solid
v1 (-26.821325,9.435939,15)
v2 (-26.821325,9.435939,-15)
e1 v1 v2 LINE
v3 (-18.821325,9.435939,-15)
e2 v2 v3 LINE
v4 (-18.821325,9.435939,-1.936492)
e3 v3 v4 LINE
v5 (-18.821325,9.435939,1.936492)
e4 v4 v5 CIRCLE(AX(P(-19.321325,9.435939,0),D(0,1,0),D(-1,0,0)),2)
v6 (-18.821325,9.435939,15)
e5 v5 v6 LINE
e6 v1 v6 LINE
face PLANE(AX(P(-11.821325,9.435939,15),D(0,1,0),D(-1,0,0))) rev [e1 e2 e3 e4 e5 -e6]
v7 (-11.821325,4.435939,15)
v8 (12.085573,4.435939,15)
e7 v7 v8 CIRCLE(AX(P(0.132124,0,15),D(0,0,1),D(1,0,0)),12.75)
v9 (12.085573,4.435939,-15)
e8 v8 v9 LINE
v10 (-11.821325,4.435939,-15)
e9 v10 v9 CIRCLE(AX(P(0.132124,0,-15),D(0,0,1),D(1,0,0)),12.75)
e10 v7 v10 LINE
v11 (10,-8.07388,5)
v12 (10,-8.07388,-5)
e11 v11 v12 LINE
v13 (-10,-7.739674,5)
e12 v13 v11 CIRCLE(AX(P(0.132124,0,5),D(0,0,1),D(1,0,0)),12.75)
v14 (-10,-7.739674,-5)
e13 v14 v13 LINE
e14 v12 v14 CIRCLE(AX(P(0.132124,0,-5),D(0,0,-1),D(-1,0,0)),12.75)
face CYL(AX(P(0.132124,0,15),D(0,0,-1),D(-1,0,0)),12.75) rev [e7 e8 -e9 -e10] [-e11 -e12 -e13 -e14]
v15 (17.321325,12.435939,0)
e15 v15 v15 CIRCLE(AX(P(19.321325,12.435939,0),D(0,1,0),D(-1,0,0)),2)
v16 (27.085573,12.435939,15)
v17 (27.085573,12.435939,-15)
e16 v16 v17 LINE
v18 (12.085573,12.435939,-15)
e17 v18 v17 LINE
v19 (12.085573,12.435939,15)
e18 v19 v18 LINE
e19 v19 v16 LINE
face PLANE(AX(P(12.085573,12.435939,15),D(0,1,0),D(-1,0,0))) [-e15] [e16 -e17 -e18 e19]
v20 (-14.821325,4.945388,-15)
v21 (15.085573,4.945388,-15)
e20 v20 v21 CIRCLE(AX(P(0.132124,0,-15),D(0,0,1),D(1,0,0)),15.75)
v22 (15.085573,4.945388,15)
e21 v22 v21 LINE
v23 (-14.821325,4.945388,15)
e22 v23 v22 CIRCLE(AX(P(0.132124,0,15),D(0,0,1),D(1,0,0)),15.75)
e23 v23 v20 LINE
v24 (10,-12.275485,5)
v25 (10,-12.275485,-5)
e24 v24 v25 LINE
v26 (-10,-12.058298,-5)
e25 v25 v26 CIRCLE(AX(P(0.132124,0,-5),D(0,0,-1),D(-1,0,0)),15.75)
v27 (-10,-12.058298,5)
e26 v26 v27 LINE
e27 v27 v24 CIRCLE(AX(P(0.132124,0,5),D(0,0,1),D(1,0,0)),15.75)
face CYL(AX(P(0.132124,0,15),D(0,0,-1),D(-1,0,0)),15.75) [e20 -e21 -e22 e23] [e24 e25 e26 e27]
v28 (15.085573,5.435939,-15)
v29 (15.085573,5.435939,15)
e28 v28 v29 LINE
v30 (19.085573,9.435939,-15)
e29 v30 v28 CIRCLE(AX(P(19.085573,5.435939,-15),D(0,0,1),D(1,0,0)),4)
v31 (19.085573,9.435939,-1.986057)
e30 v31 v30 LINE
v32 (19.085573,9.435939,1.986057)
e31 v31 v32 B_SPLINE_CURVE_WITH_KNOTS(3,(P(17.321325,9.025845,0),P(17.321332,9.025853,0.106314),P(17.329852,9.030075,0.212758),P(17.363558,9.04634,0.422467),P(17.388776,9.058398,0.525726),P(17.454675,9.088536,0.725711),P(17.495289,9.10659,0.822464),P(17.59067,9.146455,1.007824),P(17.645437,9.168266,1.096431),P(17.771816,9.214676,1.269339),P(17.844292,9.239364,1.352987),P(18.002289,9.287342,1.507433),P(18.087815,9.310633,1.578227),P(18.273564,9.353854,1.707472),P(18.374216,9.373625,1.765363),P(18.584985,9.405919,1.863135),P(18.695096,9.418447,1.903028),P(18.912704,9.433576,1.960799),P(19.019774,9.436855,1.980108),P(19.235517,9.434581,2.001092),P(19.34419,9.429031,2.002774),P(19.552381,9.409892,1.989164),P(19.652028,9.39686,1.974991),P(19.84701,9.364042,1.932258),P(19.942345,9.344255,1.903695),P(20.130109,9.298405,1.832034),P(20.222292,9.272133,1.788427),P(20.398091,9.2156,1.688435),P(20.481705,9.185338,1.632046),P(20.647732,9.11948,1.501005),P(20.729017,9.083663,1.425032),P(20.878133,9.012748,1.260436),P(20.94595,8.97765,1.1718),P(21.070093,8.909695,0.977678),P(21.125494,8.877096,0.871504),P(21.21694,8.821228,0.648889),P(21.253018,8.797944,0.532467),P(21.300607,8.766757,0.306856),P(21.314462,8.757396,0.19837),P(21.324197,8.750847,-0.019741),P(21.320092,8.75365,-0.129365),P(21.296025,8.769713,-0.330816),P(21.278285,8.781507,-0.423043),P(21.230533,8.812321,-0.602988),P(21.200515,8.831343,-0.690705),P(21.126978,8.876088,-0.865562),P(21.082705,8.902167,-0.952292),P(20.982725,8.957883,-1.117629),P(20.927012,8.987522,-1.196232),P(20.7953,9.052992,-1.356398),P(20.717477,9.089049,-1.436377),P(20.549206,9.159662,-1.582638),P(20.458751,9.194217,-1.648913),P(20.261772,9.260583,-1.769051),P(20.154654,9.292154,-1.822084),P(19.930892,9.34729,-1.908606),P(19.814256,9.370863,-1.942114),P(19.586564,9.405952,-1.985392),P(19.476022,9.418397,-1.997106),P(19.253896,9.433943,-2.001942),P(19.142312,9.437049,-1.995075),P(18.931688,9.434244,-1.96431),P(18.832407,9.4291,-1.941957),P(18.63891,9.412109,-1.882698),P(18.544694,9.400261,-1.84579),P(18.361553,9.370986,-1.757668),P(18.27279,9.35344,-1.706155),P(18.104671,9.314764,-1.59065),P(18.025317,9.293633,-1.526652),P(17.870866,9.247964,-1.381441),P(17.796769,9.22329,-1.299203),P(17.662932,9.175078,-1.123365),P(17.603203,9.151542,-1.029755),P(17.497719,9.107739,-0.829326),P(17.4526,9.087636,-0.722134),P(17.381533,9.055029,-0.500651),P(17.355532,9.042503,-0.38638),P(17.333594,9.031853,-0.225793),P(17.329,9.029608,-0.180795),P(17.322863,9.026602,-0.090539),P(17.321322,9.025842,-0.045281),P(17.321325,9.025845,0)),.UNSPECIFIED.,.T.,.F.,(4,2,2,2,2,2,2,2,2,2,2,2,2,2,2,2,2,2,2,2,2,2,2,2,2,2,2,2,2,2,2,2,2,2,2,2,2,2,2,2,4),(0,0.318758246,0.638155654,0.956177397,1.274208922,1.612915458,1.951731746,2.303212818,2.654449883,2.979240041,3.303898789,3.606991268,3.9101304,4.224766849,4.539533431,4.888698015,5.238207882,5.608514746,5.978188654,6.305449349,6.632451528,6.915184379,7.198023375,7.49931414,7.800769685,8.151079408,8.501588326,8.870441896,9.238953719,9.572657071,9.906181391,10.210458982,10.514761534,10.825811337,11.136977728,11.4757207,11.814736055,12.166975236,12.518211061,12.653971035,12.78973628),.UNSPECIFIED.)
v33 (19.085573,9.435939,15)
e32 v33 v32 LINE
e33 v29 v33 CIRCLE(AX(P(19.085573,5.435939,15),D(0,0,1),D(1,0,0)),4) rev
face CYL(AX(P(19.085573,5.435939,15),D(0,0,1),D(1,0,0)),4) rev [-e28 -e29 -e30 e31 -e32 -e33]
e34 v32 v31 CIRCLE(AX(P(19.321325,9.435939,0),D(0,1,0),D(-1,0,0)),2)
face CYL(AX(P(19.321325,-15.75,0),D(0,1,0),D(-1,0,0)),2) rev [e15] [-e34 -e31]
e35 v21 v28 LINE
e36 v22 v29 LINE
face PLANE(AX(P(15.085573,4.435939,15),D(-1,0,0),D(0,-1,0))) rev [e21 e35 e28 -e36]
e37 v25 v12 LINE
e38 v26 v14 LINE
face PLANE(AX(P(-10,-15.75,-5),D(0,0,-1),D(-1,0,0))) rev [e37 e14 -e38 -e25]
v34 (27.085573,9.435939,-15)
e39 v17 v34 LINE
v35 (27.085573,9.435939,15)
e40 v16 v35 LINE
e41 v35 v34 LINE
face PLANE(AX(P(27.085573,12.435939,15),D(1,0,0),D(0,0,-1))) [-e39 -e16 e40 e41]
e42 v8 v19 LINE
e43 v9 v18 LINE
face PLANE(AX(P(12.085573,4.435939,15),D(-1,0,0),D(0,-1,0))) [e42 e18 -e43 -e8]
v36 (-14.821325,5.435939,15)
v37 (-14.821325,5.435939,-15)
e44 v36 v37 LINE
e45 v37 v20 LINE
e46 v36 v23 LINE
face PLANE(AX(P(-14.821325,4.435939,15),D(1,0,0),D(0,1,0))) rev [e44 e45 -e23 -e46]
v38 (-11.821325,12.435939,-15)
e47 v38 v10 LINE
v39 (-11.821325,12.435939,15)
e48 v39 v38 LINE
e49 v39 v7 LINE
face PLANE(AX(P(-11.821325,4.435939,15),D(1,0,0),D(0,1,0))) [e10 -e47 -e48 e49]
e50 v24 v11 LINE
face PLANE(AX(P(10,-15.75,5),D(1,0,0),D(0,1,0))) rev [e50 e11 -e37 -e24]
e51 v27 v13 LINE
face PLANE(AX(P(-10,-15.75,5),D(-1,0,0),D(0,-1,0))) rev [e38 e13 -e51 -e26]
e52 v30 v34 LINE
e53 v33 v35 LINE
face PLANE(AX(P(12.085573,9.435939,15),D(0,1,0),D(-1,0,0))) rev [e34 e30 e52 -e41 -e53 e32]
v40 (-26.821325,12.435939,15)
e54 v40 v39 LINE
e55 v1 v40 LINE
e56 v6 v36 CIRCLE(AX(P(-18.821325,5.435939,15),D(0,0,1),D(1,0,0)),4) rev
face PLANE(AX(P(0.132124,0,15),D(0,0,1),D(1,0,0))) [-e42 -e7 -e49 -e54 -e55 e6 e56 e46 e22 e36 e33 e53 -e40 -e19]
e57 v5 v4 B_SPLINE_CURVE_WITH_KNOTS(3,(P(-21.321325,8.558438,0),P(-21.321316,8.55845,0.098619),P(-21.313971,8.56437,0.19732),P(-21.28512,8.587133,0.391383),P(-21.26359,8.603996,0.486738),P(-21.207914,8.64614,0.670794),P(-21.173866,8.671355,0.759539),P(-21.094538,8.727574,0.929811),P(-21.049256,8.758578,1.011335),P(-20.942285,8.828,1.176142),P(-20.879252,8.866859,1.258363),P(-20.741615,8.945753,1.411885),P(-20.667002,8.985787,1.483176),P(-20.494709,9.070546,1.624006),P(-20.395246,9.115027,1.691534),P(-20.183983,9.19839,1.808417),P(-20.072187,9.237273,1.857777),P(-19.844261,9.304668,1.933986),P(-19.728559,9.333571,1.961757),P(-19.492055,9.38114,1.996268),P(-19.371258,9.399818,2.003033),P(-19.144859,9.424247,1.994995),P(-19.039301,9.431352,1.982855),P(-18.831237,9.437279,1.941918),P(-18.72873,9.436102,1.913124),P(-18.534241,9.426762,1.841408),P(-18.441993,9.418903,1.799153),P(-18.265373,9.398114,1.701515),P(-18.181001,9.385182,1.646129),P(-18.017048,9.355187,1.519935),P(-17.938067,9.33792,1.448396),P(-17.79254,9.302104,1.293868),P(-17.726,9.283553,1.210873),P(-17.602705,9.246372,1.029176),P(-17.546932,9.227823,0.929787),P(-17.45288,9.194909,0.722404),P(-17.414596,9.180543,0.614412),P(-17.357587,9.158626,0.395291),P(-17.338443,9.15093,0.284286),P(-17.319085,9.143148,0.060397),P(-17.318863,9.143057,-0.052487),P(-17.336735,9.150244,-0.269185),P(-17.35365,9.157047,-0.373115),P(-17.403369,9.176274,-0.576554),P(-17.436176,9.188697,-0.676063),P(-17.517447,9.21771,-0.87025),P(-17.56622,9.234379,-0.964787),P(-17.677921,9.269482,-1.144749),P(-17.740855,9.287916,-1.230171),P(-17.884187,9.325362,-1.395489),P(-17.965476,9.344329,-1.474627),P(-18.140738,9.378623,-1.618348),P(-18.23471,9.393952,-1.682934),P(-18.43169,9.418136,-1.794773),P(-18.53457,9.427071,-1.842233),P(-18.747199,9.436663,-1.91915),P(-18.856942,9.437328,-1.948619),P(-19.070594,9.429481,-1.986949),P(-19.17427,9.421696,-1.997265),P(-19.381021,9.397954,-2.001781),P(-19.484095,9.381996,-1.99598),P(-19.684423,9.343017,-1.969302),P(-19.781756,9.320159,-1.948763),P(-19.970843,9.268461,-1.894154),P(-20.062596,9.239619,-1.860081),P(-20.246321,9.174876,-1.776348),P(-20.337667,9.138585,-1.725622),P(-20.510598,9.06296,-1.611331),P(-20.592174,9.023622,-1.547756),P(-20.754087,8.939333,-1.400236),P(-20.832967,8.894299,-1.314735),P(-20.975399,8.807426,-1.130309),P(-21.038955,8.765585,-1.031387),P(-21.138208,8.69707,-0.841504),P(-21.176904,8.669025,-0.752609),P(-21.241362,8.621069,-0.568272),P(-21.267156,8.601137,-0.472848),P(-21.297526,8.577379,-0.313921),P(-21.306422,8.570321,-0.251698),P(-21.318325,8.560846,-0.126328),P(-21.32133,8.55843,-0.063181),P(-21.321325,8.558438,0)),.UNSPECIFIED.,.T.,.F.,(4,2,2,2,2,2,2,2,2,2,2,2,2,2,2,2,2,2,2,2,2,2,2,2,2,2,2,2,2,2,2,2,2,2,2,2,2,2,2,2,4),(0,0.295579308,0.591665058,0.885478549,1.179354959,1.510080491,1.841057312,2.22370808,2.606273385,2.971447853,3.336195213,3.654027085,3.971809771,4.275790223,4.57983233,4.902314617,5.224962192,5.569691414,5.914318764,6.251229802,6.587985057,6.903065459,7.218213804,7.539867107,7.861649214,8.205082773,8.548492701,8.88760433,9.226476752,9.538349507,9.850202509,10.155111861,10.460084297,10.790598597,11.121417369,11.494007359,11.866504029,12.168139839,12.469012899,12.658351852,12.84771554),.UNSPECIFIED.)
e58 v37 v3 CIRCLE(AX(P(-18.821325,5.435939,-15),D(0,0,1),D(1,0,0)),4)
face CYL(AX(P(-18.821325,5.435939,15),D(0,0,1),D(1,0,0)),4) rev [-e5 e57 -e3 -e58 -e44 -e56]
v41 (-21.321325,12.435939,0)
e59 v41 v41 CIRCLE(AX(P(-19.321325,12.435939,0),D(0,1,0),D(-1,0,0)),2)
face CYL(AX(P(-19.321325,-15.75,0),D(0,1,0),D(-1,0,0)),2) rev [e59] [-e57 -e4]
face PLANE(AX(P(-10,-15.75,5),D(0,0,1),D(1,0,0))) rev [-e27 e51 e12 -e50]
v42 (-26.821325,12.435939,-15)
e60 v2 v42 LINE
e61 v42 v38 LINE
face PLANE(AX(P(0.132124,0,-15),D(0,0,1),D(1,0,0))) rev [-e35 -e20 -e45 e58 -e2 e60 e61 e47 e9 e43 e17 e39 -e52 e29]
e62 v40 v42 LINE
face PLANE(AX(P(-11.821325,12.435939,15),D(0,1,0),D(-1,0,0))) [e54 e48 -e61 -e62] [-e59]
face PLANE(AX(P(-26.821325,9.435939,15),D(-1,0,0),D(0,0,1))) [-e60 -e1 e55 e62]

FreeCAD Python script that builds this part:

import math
import FreeCAD as App
import Part
import Sketcher
from FreeCAD import Vector


def edges_at(feature, points):
    """Names of the edges that pass closest to the given points."""
    edges = feature.Shape.Edges
    near = lambda p: min(range(len(edges)), key=lambda i: edges[i].distToShape(Part.Vertex(*p))[0])
    return sorted({f"Edge{near(p) + 1}" for p in points})


def add_polygon(sketch, points):
    """Adds a closed chain of lines whose ends are joined by coincident constraints."""
    first, n = sketch.GeometryCount, len(points)
    for a, b in zip(points, points[1:] + points[:1]):
        sketch.addGeometry(Part.LineSegment(App.Vector(*a, 0), App.Vector(*b, 0)), False)
    for i in range(n):
        sketch.addConstraint(Sketcher.Constraint("Coincident", first + i, 2, first + (i + 1) % n, 1))

doc = App.newDocument("Part")
body = doc.addObject("PartDesign::Body", "Body")

sketch1 = body.newObject("Sketcher::SketchObject", "Sketch")
sketch1.AttachmentSupport = (doc.getObject("XY_Plane"), [""])
sketch1.MapMode = "FlatFace"
sketch1.addGeometry([
    Part.LineSegment(Vector(27.1, 12.4, 0), Vector(12.1, 12.4, 0)),
    Part.LineSegment(Vector(12.1, 12.4, 0), Vector(12.1, 4.4, 0)),
    Part.ArcOfCircle(Part.Circle(Vector(0.1, 0, 0), Vector(0, 0, 1), 12.8), math.radians(160), math.radians(380)),
    Part.LineSegment(Vector(-11.8, 4.4, 0), Vector(-11.8, 12.4, 0)),
    Part.LineSegment(Vector(-11.8, 12.4, 0), Vector(-26.8, 12.4, 0)),
    Part.LineSegment(Vector(-26.8, 12.4, 0), Vector(-26.8, 9.4, 0)),
    Part.LineSegment(Vector(-26.8, 9.4, 0), Vector(-14.8, 9.4, 0)),
    Part.LineSegment(Vector(-14.8, 9.4, 0), Vector(-14.8, 4.9, 0)),
    Part.ArcOfCircle(Part.Circle(Vector(0.1, 0, 0), Vector(0, 0, 1), 15.8), math.radians(162), math.radians(378)),
    Part.LineSegment(Vector(15.1, 4.9, 0), Vector(15.1, 9.4, 0)),
    Part.LineSegment(Vector(15.1, 9.4, 0), Vector(27.1, 9.4, 0)),
    Part.LineSegment(Vector(27.1, 9.4, 0), Vector(27.1, 12.4, 0)),
], False)
sketch1.addConstraint([
    Sketcher.Constraint("Coincident", 0, 2, 1, 1),
    Sketcher.Constraint("Coincident", 1, 2, 2, 2),
    Sketcher.Constraint("Coincident", 2, 1, 3, 1),
    Sketcher.Constraint("Coincident", 3, 2, 4, 1),
    Sketcher.Constraint("Coincident", 4, 2, 5, 1),
    Sketcher.Constraint("Coincident", 5, 2, 6, 1),
    Sketcher.Constraint("Coincident", 6, 2, 7, 1),
    Sketcher.Constraint("Coincident", 7, 2, 8, 1),
    Sketcher.Constraint("Coincident", 8, 2, 9, 1),
    Sketcher.Constraint("Coincident", 9, 2, 10, 1),
    Sketcher.Constraint("Coincident", 10, 2, 11, 1),
    Sketcher.Constraint("Coincident", 11, 2, 0, 1),
    Sketcher.Constraint("Horizontal", 0),
    Sketcher.Constraint("Vertical", 1),
    Sketcher.Constraint("Vertical", 3),
    Sketcher.Constraint("Horizontal", 4),
    Sketcher.Constraint("Vertical", 5),
    Sketcher.Constraint("Horizontal", 6),
    Sketcher.Constraint("Vertical", 7),
    Sketcher.Constraint("Vertical", 9),
    Sketcher.Constraint("Horizontal", 10),
    Sketcher.Constraint("Vertical", 11),
    Sketcher.Constraint("Coincident", 8, 3, 2, 3),
    Sketcher.Constraint("PointOnObject", 2, 3, -1),
    Sketcher.Constraint("Horizontal", 1, 2, 2, 1),
    Sketcher.Constraint("Horizontal", 0, 2, 3, 2),
    Sketcher.Constraint("Horizontal", 7, 2, 8, 2),
    Sketcher.Constraint("Horizontal", 6, 2, 9, 2),
    Sketcher.Constraint("Equal", 0, 4),
    Sketcher.Constraint("DistanceX", 0, 2, 0, 1, 15.0),
    Sketcher.Constraint("DistanceX", 6, 1, 6, 2, 12.0),
    Sketcher.Constraint("DistanceY", 1, 2, 1, 1, 8.0),
    Sketcher.Constraint("DistanceY", 5, 2, 5, 1, 3.0),
    Sketcher.Constraint("Radius", 2, 12.75),
    Sketcher.Constraint("Radius", 8, 15.75),
    Sketcher.Constraint("DistanceY", 7, 2, 7, 1, 4.490551),
    Sketcher.Constraint("DistanceX", -1, 1, 2, 3, 0.132124),
])
pad1 = body.newObject("PartDesign::Pad", "Pad")
pad1.Profile = sketch1
pad1.Length = 30
pad1.Midplane = True
doc.recompute()

fillet = body.newObject("PartDesign::Fillet", "Fillet")
fillet.Base = (pad1, edges_at(pad1, [(15.086, 9.436, 0), (-14.821, 9.436, 0)]))
fillet.Radius = 4

sketch2 = body.newObject("Sketcher::SketchObject", "Sketch001")
sketch2.AttachmentSupport = (doc.getObject("XZ_Plane"), [""])
sketch2.MapMode = "FlatFace"
sketch2.AttachmentOffset = App.Placement(Vector(0, 0, -12.435939), App.Rotation())
sketch2.addGeometry(Part.Circle(Vector(-19.3, 0, 0), Vector(0, 0, 1), 2), False)
sketch2.addGeometry(Part.Circle(Vector(19.3, 0, 0), Vector(0, 0, 1), 2), False)
add_polygon(sketch2, [(-10, -5), (-10, 5), (10, 5), (10, -5)])
sketch2.addConstraint([
    Sketcher.Constraint("Vertical", 2),
    Sketcher.Constraint("Horizontal", 3),
    Sketcher.Constraint("Vertical", 4),
    Sketcher.Constraint("Horizontal", 5),
    Sketcher.Constraint("Equal", 0, 1),
    Sketcher.Constraint("Symmetric", 0, 3, 1, 3, -1, 1),
    Sketcher.Constraint("Symmetric", 2, 2, 4, 2, -1, 1),
    Sketcher.Constraint("PointOnObject", 0, 3, -1),
    Sketcher.Constraint("Diameter", 0, 4.0),
    Sketcher.Constraint("DistanceX", 3, 1, 3, 2, 20.0),
    Sketcher.Constraint("DistanceY", 2, 1, 2, 2, 10.0),
    Sketcher.Constraint("DistanceX", 0, 3, 1, 3, 38.64265),
])
pocket1 = body.newObject("PartDesign::Pocket", "Pocket")
pocket1.Profile = sketch2
pocket1.Type = "ThroughAll"
pocket1.Reversed = True

doc.recompute()
